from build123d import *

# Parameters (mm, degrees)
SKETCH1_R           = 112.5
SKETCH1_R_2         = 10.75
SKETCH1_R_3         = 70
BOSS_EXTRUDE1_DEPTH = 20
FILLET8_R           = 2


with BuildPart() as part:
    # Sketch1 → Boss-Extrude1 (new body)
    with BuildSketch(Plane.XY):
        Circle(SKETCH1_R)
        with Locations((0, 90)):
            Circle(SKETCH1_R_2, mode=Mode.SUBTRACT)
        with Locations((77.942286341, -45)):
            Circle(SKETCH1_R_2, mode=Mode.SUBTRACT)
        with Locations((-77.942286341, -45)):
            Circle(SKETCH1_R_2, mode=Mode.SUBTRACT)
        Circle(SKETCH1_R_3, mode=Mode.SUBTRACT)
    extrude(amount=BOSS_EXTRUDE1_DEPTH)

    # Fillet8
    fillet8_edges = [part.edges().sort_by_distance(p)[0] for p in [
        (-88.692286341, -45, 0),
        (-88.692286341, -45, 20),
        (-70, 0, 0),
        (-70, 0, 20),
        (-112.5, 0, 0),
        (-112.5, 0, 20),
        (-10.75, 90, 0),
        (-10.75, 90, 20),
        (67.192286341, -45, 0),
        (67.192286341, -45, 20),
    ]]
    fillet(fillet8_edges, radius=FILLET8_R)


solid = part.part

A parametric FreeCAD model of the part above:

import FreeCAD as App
import Part
import Sketcher
Q = App.Units.Quantity


def edges_at(feature, points):
    """Names of the edges that pass closest to the given points."""
    edges = feature.Shape.Edges
    near = lambda p: min(range(len(edges)), key=lambda i: edges[i].distToShape(Part.Vertex(*p))[0])
    return sorted({f"Edge{near(p) + 1}" for p in points})

doc = App.newDocument("Part")
body = doc.addObject("PartDesign::Body", "Body")

# Sketch on XY plane
sketch1 = body.newObject("Sketcher::SketchObject", "Sketch")
sketch1.AttachmentSupport = (doc.getObject("XY_Plane"), [""])
sketch1.MapMode = "FlatFace"
sketch1.addGeometry([
    Part.Circle(App.Vector(0, 0, 0), App.Vector(0, 0, 1), 112),  # 0
    Part.Circle(App.Vector(-78, -45, 0), App.Vector(0, 0, 1), 11),  # 1
    Part.Circle(App.Vector(78, -45, 0), App.Vector(0, 0, 1), 11),  # 2
    Part.Circle(App.Vector(0, 0, 0), App.Vector(0, 0, 1), 70),  # 3
    Part.Circle(App.Vector(0, 90, 0), App.Vector(0, 0, 1), 11),  # 4
], False)
sketch1.addConstraint([
    Sketcher.Constraint("Coincident", 0, 3, -1, 1),
    Sketcher.Constraint("Coincident", 3, 3, -1, 1),
    Sketcher.Constraint("Equal", 1, 2),
    Sketcher.Constraint("Equal", 2, 4),
    Sketcher.Constraint("Symmetric", 1, 3, 2, 3, -2),
    Sketcher.Constraint("PointOnObject", 4, 3, -2),
    Sketcher.Constraint("Diameter", 0, Q("225 mm")),
    Sketcher.Constraint("Diameter", 3, Q("140 mm")),
    Sketcher.Constraint("Diameter", 1, Q("21.5 mm")),
    Sketcher.Constraint("DistanceY", 1, 3, -1, 1, Q("45 mm")),
    Sketcher.Constraint("DistanceY", -1, 1, 4, 3, Q("90 mm")),
    Sketcher.Constraint("DistanceX", 1, 3, -1, 1, Q("77.942286 mm")),
])
pad1 = body.newObject("PartDesign::Pad", "Pad")
pad1.Profile = sketch1
pad1.Length = 20
doc.recompute()

fillet = body.newObject("PartDesign::Fillet", "Fillet")
fillet.Base = (pad1, edges_at(pad1, [
    (-88.692, -45, 0),
    (-88.692, -45, 20),
    (-70, 0, 0),
    (-70, 0, 20),
    (-112.5, 0, 0),
    (-112.5, 0, 20),
    (-10.75, 90, 0),
    (-10.75, 90, 20),
    (67.192, -45, 0),
    (67.192, -45, 20),
]))
fillet.Radius = 2

doc.recompute()
